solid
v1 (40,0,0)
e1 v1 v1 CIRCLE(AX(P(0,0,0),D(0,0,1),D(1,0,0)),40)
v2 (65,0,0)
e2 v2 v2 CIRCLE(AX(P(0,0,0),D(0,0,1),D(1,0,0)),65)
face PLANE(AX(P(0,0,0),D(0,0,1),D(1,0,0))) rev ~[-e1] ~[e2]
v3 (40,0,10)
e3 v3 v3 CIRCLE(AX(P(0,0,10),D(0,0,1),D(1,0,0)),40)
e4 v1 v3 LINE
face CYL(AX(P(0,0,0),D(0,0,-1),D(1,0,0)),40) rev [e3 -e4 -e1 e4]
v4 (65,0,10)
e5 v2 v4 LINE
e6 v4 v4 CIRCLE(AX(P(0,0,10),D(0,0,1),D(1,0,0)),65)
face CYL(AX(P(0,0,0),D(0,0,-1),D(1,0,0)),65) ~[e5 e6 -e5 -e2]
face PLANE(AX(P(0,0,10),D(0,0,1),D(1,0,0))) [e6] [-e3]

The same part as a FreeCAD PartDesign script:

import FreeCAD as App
import Part
import Sketcher

V = App.Vector

doc = App.newDocument("Part")
body = doc.addObject("PartDesign::Body", "Body")

# Sketch on XY plane
sketch1 = doc.addObject("Sketcher::SketchObject", "Sketch")
body.addObject(sketch1)
sketch1.AttachmentSupport = (doc.XY_Plane, [""])
sketch1.MapMode = "FlatFace"
sketch1.addGeometry([
    Part.Circle(V(0, 0, 0), V(0, 0, 1), 65),
    Part.Circle(V(0, 0, 0), V(0, 0, 1), 40),
], False)
sketch1.addConstraint([
    Sketcher.Constraint("Coincident", 0, 3, -1, 1),
    Sketcher.Constraint("Coincident", 1, 3, -1, 1),
    Sketcher.Constraint("Diameter", 0, 130.0),
    Sketcher.Constraint("Diameter", 1, 80.0),
])
pad1 = doc.addObject("PartDesign::Pad", "Pad")
body.addObject(pad1)
pad1.Profile = sketch1
pad1.Length = 10

doc.recompute()
